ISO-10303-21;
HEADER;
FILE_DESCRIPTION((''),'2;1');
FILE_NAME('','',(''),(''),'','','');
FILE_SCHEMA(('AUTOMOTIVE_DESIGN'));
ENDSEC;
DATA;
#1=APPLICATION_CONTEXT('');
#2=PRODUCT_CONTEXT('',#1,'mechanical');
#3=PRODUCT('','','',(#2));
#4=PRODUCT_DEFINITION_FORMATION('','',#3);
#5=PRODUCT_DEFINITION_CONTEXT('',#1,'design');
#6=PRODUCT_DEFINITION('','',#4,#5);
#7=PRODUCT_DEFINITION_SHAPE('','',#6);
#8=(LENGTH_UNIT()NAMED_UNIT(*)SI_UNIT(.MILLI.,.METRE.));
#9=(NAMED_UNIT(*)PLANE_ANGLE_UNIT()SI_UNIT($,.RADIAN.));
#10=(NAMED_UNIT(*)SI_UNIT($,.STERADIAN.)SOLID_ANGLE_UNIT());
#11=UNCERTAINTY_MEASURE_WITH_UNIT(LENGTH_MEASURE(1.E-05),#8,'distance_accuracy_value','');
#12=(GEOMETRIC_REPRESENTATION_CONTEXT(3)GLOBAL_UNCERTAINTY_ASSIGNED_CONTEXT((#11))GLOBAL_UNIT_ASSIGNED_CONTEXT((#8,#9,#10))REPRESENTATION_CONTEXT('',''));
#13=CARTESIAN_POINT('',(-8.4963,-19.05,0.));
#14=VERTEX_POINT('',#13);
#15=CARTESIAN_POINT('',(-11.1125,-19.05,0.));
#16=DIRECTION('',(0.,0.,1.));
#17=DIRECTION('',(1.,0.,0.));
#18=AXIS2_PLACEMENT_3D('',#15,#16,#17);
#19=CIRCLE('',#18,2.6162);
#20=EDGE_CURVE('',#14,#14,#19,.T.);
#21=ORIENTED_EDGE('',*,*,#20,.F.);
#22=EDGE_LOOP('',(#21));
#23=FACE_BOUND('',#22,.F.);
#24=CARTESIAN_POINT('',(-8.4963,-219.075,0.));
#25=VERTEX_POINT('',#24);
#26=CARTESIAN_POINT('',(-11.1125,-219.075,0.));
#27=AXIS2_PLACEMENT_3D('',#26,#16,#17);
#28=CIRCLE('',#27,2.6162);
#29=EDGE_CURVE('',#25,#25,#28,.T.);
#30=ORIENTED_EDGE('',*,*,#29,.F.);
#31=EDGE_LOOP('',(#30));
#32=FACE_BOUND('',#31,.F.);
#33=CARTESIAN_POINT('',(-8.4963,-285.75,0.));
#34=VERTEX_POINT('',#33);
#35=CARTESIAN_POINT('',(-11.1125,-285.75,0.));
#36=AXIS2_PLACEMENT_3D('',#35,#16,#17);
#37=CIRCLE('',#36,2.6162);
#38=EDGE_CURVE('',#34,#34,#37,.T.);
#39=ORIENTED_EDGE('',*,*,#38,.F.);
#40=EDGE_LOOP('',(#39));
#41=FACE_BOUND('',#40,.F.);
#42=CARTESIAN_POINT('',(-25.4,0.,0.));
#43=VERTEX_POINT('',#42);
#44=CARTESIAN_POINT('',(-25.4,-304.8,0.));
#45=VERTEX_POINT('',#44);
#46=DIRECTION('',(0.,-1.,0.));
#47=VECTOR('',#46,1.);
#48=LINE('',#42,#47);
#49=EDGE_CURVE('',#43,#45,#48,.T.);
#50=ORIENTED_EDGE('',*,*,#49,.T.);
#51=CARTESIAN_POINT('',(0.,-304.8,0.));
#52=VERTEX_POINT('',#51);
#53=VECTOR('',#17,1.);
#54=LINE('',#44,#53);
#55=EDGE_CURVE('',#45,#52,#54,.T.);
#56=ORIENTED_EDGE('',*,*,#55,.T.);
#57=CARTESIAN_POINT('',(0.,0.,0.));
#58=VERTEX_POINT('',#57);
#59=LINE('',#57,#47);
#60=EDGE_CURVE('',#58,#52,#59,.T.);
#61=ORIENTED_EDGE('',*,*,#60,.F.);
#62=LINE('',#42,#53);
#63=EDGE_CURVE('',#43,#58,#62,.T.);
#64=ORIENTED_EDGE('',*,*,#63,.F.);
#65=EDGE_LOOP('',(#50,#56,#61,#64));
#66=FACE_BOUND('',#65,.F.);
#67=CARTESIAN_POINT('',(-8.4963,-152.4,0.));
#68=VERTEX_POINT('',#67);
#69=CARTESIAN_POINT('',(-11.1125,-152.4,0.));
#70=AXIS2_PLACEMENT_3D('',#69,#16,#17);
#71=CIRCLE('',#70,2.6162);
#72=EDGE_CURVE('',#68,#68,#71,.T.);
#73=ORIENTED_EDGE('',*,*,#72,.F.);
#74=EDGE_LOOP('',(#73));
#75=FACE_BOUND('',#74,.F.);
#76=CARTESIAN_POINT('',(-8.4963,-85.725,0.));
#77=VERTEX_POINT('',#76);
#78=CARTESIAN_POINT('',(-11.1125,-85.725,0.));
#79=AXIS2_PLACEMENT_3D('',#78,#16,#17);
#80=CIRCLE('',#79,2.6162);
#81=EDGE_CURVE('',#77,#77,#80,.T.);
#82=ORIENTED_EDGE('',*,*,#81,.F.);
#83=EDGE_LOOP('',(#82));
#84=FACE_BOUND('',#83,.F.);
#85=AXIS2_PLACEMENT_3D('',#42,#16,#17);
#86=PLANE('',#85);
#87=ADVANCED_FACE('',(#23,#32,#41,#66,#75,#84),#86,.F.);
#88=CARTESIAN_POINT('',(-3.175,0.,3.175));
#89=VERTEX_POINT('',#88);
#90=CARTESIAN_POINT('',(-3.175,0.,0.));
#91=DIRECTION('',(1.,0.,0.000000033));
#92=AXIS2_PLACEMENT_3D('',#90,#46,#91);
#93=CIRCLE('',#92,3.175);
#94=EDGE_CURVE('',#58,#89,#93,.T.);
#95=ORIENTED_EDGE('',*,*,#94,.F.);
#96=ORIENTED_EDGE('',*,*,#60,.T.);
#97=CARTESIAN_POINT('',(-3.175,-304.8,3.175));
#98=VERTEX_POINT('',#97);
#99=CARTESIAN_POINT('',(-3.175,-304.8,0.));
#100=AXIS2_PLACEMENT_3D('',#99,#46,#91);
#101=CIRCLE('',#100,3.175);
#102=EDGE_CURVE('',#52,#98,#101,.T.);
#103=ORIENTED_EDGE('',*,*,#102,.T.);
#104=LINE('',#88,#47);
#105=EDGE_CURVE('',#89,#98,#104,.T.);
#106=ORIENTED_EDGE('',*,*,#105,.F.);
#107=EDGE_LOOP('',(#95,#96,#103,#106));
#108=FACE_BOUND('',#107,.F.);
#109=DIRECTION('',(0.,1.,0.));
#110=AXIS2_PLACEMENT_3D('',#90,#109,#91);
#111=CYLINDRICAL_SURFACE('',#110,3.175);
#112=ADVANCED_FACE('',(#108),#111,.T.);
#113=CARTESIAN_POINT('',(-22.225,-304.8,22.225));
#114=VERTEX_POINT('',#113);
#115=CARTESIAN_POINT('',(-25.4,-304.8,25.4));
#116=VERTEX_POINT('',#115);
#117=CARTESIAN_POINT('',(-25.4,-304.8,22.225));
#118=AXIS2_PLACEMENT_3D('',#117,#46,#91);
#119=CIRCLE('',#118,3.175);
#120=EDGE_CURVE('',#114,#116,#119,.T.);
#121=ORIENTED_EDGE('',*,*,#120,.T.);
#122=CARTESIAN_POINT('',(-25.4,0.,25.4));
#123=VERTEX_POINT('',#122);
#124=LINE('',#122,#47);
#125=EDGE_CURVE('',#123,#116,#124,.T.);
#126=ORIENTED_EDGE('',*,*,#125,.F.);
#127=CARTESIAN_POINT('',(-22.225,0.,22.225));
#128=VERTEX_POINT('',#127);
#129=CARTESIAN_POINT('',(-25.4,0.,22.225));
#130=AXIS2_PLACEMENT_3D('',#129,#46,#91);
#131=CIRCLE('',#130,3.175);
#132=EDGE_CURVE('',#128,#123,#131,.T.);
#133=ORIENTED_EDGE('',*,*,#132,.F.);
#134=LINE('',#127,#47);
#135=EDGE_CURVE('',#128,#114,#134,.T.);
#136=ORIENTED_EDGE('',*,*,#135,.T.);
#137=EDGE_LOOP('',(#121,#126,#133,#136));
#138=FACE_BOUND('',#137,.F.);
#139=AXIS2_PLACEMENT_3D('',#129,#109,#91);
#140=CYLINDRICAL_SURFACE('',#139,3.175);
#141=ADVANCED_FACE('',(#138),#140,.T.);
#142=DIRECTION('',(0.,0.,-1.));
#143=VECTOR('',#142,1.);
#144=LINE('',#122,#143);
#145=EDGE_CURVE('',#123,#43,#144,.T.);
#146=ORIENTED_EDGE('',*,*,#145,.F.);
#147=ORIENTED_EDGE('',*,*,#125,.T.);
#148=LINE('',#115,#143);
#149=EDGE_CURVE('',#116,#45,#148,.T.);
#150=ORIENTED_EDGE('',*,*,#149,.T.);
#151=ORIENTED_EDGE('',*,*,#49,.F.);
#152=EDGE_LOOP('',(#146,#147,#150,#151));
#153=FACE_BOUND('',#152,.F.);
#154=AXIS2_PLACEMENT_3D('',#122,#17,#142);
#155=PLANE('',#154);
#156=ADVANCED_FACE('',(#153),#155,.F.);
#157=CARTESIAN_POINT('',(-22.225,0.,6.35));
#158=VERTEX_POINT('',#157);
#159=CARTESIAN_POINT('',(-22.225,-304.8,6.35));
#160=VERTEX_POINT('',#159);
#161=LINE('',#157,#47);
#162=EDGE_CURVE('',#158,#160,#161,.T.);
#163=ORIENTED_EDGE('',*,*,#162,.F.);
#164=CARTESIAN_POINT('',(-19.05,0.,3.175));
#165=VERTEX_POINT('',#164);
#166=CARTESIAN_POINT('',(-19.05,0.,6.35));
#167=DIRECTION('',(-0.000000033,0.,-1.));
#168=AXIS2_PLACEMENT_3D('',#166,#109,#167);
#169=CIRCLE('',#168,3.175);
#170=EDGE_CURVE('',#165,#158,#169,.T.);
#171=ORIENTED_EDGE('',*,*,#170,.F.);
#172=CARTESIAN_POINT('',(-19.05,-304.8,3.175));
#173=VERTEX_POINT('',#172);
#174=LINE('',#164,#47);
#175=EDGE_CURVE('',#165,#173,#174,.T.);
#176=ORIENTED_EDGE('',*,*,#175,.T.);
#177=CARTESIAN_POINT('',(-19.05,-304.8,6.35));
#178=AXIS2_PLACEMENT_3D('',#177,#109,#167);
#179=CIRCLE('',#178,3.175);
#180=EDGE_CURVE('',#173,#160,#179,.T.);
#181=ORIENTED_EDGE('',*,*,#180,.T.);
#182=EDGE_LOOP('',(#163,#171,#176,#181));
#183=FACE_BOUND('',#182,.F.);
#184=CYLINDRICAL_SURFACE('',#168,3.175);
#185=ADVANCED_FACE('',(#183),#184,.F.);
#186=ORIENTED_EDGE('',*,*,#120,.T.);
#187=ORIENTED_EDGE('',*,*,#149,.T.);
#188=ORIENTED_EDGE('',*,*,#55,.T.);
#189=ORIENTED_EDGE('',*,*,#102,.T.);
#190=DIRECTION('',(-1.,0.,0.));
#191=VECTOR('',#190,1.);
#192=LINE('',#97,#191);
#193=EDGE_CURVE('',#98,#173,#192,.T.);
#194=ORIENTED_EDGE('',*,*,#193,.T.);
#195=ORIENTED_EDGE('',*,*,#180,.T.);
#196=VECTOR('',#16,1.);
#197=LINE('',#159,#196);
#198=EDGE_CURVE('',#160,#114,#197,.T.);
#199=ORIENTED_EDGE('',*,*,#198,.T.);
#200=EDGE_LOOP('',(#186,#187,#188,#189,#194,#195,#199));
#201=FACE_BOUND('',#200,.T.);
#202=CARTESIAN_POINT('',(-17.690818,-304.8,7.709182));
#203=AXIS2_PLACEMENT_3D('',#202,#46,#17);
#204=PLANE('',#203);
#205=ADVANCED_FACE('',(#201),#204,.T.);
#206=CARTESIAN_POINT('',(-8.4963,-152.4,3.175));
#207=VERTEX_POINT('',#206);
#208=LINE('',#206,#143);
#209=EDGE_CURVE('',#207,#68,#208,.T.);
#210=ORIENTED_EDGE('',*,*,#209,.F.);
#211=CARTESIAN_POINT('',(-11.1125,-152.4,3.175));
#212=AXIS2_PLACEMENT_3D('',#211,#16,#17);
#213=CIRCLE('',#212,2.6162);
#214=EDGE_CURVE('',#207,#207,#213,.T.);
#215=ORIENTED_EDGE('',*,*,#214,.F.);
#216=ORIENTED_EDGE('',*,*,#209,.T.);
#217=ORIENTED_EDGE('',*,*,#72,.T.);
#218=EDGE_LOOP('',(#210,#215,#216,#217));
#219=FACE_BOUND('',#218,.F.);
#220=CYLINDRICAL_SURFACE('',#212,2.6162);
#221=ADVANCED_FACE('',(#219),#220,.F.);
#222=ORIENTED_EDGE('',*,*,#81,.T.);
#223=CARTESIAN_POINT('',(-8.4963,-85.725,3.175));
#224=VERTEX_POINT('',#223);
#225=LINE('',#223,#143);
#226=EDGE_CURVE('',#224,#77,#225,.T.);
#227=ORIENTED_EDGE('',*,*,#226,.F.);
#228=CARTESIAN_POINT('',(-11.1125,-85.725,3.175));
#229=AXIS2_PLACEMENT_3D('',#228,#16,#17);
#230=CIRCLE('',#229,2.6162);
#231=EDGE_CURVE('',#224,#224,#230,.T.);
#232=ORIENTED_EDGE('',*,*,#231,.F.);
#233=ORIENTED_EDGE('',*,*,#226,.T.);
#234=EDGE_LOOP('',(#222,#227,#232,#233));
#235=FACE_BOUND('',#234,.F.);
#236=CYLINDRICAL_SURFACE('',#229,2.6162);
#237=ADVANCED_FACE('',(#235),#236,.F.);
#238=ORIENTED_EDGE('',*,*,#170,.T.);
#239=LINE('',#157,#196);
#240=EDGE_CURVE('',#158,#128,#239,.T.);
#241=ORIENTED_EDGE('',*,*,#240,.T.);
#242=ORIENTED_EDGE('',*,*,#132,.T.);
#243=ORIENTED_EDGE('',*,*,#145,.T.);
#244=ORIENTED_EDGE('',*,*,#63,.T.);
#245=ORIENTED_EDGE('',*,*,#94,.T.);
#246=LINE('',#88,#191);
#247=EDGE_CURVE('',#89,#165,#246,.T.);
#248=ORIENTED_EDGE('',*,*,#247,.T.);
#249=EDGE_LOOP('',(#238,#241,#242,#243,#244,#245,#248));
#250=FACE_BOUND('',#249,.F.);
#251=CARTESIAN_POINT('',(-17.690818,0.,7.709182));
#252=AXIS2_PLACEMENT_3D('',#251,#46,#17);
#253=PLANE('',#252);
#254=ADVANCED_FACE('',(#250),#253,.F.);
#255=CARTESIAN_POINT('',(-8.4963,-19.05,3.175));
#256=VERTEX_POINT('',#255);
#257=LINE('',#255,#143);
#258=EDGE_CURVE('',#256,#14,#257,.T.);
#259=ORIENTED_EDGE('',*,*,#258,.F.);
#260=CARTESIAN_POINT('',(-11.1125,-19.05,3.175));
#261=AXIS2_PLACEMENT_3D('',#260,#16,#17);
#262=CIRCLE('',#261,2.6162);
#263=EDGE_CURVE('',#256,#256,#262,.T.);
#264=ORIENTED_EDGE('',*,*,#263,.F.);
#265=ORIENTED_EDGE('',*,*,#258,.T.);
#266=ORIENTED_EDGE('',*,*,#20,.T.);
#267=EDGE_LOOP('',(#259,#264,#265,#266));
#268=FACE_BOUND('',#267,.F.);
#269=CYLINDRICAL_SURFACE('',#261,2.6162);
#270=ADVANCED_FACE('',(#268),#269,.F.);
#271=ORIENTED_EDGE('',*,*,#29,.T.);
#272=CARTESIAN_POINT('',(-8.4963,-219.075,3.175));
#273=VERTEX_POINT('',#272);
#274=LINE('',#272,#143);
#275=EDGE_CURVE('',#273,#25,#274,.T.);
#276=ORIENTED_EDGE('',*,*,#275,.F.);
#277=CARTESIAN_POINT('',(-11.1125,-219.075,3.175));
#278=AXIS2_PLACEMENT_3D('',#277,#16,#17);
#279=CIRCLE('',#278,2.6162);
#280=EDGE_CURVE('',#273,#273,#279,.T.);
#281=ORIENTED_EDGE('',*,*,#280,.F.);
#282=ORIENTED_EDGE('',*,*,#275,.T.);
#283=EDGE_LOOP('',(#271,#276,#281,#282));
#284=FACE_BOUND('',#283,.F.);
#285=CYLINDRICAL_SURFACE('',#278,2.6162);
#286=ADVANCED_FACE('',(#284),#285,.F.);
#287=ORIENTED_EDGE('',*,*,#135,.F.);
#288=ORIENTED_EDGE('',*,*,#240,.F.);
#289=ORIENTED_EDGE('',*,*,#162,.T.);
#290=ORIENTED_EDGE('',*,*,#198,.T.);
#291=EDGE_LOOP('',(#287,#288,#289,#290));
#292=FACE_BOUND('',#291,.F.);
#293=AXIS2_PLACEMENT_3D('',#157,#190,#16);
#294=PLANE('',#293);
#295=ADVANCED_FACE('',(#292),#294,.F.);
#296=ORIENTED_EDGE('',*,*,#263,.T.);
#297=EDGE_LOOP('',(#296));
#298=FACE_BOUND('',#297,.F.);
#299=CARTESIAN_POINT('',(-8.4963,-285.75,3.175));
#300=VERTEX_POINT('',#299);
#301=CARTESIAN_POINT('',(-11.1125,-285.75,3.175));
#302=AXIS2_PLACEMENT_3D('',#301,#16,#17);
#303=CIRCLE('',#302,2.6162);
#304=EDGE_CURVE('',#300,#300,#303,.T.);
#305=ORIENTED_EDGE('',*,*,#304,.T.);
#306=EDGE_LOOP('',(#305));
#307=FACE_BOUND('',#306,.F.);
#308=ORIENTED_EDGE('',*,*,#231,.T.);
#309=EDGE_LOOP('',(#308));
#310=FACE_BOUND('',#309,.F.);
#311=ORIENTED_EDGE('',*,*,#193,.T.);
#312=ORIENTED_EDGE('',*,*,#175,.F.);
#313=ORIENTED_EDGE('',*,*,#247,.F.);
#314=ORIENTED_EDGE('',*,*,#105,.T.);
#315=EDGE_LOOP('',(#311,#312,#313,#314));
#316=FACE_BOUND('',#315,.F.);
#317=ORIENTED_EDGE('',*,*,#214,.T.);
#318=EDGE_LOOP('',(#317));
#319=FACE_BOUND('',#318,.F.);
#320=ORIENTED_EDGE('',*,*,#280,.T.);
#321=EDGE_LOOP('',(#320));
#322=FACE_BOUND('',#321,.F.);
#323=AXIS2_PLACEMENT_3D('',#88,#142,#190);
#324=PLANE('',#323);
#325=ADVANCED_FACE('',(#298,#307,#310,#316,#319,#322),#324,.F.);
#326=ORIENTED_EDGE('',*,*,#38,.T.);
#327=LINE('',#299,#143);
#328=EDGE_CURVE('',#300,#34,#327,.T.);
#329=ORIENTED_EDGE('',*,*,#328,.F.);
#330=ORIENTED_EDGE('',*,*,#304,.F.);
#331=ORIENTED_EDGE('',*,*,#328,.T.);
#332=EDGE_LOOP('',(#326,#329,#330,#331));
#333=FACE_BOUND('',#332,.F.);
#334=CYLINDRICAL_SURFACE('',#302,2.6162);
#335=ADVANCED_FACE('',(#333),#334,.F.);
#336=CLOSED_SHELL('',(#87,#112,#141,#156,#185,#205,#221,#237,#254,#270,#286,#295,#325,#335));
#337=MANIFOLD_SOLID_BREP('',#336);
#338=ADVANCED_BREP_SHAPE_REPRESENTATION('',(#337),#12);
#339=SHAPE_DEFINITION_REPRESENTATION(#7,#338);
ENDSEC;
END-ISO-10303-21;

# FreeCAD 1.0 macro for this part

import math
import FreeCAD as App
import Part
import Sketcher
from FreeCAD import Vector
Q = App.Units.Quantity

doc = App.newDocument("Part")
params = doc.addObject("Spreadsheet::Sheet", "Params")
for row, (alias, value) in enumerate([
    ("sketch1_width", "1 in"),
    ("sketch1_radius", "0.125 in"),
    ("pad1_length", "12 in"),
    ("sketch2_diameter", "0.206 in"),
], start=1):
    params.set(f"A{row}", alias)
    params.set(f"B{row}", "=" + value)
    params.setAlias(f"B{row}", alias)

body = doc.addObject("PartDesign::Body", "Body")

sketch1 = doc.addObject("Sketcher::SketchObject", "Sketch")
body.addObject(sketch1)
sketch1.AttachmentSupport = (doc.XZ_Plane, [""])
sketch1.MapMode = "FlatFace"
sketch1.addGeometry(Part.LineSegment(Vector(-25.4, 0, 0), Vector(0, 0, 0)), False)
sketch1.addGeometry(Part.ArcOfCircle(Part.Circle(Vector(-3.2, 0, 0), Vector(0, 0, 1), 3.2), math.radians(0), math.radians(90)), False)
sketch1.addGeometry(Part.LineSegment(Vector(-3.2, 3.2, 0), Vector(-19.1, 3.2, 0)), False)
sketch1.addGeometry(Part.ArcOfCircle(Part.Circle(Vector(-19, 6.4, 0), Vector(0, 0, 1), 3.2), math.radians(-180), math.radians(-90)), False)
sketch1.addGeometry(Part.LineSegment(Vector(-22.2, 6.3, 0), Vector(-22.2, 22.2, 0)), False)
sketch1.addGeometry(Part.ArcOfCircle(Part.Circle(Vector(-25.4, 22.2, 0), Vector(0, 0, 1), 3.2), math.radians(0), math.radians(90)), False)
sketch1.addGeometry(Part.LineSegment(Vector(-25.4, 25.4, 0), Vector(-25.4, 0, 0)), False)
sketch1.addConstraint(Sketcher.Constraint("Coincident", 0, 2, 1, 1))
sketch1.addConstraint(Sketcher.Constraint("Tangent", 1, 2, 2, 1))
sketch1.addConstraint(Sketcher.Constraint("Tangent", 2, 2, 3, 2))
sketch1.addConstraint(Sketcher.Constraint("Tangent", 3, 1, 4, 1))
sketch1.addConstraint(Sketcher.Constraint("Tangent", 4, 2, 5, 1))
sketch1.addConstraint(Sketcher.Constraint("Coincident", 5, 2, 6, 1))
sketch1.addConstraint(Sketcher.Constraint("Coincident", 6, 2, 0, 1))
sketch1.addConstraint(Sketcher.Constraint("Horizontal", 0))
sketch1.addConstraint(Sketcher.Constraint("Horizontal", 2))
sketch1.addConstraint(Sketcher.Constraint("Vertical", 4))
sketch1.addConstraint(Sketcher.Constraint("Vertical", 6))
sketch1.addConstraint(Sketcher.Constraint("Coincident", 0, 2, -1, 1))
sketch1.addConstraint(Sketcher.Constraint("Equal", 1, 3))
sketch1.addConstraint(Sketcher.Constraint("Equal", 3, 5))
sketch1.addConstraint(Sketcher.Constraint("PointOnObject", 1, 3, -1))
sketch1.addConstraint(Sketcher.Constraint("Equal", 2, 4))
sketch1.addConstraint(Sketcher.Constraint("Equal", 0, 6))
sketch1.addConstraint(Sketcher.Constraint("DistanceX", 0, 1, 0, 2, Q("1 in")))
sketch1.addConstraint(Sketcher.Constraint("Radius", 1, Q("0.125 in")))
sketch1.setExpression("Constraints[17]", "Params.sketch1_width")
sketch1.setExpression("Constraints[18]", "Params.sketch1_radius")
pad1 = doc.addObject("PartDesign::Pad", "Pad")
body.addObject(pad1)
pad1.Profile = sketch1
pad1.setExpression("Length", "Params.pad1_length")

sketch2 = doc.addObject("Sketcher::SketchObject", "Sketch001")
body.addObject(sketch2)
sketch2.AttachmentSupport = (doc.XY_Plane, [""])
sketch2.MapMode = "FlatFace"
sketch2.AttachmentOffset = App.Placement(Vector(0, 0, 0.125 * 25.4), App.Rotation())
sketch2.addGeometry(Part.Circle(Vector(-11.1, -285.8, 0), Vector(0, 0, 1), 2.6), False)
sketch2.addGeometry(Part.Circle(Vector(-11.1, -19.1, 0), Vector(0, 0, 1), 2.6), False)
sketch2.addGeometry(Part.Circle(Vector(-11.1, -219.1, 0), Vector(0, 0, 1), 2.6), False)
sketch2.addGeometry(Part.Circle(Vector(-11.1, -152.4, 0), Vector(0, 0, 1), 2.6), False)
sketch2.addGeometry(Part.Circle(Vector(-11.1, -85.7, 0), Vector(0, 0, 1), 2.6), False)
sketch2.addConstraint(Sketcher.Constraint("Equal", 0, 1))
sketch2.addConstraint(Sketcher.Constraint("Equal", 1, 2))
sketch2.addConstraint(Sketcher.Constraint("Equal", 2, 3))
sketch2.addConstraint(Sketcher.Constraint("Equal", 3, 4))
sketch2.addConstraint(Sketcher.Constraint("Vertical", 0, 3, 1, 3))
sketch2.addConstraint(Sketcher.Constraint("Vertical", 1, 3, 2, 3))
sketch2.addConstraint(Sketcher.Constraint("Vertical", 2, 3, 3, 3))
sketch2.addConstraint(Sketcher.Constraint("Vertical", 3, 3, 4, 3))
sketch2.addConstraint(Sketcher.Constraint("Diameter", 0, Q("0.206 in")))
sketch2.addConstraint(Sketcher.Constraint("DistanceY", 3, 3, -1, 1, Q("6 in")))
sketch2.addConstraint(Sketcher.Constraint("DistanceY", 0, 3, 1, 3, Q("10.5 in")))
sketch2.addConstraint(Sketcher.Constraint("DistanceY", 0, 3, -1, 1, Q("11.25 in")))
sketch2.addConstraint(Sketcher.Constraint("DistanceY", 2, 3, 4, 3, Q("5.25 in")))
sketch2.addConstraint(Sketcher.Constraint("DistanceX", 0, 3, -1, 1, Q("0.4375 in")))
sketch2.addConstraint(Sketcher.Constraint("DistanceY", 2, 3, -1, 1, Q("8.625 in")))
sketch2.setExpression("Constraints[8]", "Params.sketch2_diameter")
pocket1 = doc.addObject("PartDesign::Pocket", "Pocket")
body.addObject(pocket1)
pocket1.Profile = sketch2
pocket1.Type = "ThroughAll"

doc.recompute()
